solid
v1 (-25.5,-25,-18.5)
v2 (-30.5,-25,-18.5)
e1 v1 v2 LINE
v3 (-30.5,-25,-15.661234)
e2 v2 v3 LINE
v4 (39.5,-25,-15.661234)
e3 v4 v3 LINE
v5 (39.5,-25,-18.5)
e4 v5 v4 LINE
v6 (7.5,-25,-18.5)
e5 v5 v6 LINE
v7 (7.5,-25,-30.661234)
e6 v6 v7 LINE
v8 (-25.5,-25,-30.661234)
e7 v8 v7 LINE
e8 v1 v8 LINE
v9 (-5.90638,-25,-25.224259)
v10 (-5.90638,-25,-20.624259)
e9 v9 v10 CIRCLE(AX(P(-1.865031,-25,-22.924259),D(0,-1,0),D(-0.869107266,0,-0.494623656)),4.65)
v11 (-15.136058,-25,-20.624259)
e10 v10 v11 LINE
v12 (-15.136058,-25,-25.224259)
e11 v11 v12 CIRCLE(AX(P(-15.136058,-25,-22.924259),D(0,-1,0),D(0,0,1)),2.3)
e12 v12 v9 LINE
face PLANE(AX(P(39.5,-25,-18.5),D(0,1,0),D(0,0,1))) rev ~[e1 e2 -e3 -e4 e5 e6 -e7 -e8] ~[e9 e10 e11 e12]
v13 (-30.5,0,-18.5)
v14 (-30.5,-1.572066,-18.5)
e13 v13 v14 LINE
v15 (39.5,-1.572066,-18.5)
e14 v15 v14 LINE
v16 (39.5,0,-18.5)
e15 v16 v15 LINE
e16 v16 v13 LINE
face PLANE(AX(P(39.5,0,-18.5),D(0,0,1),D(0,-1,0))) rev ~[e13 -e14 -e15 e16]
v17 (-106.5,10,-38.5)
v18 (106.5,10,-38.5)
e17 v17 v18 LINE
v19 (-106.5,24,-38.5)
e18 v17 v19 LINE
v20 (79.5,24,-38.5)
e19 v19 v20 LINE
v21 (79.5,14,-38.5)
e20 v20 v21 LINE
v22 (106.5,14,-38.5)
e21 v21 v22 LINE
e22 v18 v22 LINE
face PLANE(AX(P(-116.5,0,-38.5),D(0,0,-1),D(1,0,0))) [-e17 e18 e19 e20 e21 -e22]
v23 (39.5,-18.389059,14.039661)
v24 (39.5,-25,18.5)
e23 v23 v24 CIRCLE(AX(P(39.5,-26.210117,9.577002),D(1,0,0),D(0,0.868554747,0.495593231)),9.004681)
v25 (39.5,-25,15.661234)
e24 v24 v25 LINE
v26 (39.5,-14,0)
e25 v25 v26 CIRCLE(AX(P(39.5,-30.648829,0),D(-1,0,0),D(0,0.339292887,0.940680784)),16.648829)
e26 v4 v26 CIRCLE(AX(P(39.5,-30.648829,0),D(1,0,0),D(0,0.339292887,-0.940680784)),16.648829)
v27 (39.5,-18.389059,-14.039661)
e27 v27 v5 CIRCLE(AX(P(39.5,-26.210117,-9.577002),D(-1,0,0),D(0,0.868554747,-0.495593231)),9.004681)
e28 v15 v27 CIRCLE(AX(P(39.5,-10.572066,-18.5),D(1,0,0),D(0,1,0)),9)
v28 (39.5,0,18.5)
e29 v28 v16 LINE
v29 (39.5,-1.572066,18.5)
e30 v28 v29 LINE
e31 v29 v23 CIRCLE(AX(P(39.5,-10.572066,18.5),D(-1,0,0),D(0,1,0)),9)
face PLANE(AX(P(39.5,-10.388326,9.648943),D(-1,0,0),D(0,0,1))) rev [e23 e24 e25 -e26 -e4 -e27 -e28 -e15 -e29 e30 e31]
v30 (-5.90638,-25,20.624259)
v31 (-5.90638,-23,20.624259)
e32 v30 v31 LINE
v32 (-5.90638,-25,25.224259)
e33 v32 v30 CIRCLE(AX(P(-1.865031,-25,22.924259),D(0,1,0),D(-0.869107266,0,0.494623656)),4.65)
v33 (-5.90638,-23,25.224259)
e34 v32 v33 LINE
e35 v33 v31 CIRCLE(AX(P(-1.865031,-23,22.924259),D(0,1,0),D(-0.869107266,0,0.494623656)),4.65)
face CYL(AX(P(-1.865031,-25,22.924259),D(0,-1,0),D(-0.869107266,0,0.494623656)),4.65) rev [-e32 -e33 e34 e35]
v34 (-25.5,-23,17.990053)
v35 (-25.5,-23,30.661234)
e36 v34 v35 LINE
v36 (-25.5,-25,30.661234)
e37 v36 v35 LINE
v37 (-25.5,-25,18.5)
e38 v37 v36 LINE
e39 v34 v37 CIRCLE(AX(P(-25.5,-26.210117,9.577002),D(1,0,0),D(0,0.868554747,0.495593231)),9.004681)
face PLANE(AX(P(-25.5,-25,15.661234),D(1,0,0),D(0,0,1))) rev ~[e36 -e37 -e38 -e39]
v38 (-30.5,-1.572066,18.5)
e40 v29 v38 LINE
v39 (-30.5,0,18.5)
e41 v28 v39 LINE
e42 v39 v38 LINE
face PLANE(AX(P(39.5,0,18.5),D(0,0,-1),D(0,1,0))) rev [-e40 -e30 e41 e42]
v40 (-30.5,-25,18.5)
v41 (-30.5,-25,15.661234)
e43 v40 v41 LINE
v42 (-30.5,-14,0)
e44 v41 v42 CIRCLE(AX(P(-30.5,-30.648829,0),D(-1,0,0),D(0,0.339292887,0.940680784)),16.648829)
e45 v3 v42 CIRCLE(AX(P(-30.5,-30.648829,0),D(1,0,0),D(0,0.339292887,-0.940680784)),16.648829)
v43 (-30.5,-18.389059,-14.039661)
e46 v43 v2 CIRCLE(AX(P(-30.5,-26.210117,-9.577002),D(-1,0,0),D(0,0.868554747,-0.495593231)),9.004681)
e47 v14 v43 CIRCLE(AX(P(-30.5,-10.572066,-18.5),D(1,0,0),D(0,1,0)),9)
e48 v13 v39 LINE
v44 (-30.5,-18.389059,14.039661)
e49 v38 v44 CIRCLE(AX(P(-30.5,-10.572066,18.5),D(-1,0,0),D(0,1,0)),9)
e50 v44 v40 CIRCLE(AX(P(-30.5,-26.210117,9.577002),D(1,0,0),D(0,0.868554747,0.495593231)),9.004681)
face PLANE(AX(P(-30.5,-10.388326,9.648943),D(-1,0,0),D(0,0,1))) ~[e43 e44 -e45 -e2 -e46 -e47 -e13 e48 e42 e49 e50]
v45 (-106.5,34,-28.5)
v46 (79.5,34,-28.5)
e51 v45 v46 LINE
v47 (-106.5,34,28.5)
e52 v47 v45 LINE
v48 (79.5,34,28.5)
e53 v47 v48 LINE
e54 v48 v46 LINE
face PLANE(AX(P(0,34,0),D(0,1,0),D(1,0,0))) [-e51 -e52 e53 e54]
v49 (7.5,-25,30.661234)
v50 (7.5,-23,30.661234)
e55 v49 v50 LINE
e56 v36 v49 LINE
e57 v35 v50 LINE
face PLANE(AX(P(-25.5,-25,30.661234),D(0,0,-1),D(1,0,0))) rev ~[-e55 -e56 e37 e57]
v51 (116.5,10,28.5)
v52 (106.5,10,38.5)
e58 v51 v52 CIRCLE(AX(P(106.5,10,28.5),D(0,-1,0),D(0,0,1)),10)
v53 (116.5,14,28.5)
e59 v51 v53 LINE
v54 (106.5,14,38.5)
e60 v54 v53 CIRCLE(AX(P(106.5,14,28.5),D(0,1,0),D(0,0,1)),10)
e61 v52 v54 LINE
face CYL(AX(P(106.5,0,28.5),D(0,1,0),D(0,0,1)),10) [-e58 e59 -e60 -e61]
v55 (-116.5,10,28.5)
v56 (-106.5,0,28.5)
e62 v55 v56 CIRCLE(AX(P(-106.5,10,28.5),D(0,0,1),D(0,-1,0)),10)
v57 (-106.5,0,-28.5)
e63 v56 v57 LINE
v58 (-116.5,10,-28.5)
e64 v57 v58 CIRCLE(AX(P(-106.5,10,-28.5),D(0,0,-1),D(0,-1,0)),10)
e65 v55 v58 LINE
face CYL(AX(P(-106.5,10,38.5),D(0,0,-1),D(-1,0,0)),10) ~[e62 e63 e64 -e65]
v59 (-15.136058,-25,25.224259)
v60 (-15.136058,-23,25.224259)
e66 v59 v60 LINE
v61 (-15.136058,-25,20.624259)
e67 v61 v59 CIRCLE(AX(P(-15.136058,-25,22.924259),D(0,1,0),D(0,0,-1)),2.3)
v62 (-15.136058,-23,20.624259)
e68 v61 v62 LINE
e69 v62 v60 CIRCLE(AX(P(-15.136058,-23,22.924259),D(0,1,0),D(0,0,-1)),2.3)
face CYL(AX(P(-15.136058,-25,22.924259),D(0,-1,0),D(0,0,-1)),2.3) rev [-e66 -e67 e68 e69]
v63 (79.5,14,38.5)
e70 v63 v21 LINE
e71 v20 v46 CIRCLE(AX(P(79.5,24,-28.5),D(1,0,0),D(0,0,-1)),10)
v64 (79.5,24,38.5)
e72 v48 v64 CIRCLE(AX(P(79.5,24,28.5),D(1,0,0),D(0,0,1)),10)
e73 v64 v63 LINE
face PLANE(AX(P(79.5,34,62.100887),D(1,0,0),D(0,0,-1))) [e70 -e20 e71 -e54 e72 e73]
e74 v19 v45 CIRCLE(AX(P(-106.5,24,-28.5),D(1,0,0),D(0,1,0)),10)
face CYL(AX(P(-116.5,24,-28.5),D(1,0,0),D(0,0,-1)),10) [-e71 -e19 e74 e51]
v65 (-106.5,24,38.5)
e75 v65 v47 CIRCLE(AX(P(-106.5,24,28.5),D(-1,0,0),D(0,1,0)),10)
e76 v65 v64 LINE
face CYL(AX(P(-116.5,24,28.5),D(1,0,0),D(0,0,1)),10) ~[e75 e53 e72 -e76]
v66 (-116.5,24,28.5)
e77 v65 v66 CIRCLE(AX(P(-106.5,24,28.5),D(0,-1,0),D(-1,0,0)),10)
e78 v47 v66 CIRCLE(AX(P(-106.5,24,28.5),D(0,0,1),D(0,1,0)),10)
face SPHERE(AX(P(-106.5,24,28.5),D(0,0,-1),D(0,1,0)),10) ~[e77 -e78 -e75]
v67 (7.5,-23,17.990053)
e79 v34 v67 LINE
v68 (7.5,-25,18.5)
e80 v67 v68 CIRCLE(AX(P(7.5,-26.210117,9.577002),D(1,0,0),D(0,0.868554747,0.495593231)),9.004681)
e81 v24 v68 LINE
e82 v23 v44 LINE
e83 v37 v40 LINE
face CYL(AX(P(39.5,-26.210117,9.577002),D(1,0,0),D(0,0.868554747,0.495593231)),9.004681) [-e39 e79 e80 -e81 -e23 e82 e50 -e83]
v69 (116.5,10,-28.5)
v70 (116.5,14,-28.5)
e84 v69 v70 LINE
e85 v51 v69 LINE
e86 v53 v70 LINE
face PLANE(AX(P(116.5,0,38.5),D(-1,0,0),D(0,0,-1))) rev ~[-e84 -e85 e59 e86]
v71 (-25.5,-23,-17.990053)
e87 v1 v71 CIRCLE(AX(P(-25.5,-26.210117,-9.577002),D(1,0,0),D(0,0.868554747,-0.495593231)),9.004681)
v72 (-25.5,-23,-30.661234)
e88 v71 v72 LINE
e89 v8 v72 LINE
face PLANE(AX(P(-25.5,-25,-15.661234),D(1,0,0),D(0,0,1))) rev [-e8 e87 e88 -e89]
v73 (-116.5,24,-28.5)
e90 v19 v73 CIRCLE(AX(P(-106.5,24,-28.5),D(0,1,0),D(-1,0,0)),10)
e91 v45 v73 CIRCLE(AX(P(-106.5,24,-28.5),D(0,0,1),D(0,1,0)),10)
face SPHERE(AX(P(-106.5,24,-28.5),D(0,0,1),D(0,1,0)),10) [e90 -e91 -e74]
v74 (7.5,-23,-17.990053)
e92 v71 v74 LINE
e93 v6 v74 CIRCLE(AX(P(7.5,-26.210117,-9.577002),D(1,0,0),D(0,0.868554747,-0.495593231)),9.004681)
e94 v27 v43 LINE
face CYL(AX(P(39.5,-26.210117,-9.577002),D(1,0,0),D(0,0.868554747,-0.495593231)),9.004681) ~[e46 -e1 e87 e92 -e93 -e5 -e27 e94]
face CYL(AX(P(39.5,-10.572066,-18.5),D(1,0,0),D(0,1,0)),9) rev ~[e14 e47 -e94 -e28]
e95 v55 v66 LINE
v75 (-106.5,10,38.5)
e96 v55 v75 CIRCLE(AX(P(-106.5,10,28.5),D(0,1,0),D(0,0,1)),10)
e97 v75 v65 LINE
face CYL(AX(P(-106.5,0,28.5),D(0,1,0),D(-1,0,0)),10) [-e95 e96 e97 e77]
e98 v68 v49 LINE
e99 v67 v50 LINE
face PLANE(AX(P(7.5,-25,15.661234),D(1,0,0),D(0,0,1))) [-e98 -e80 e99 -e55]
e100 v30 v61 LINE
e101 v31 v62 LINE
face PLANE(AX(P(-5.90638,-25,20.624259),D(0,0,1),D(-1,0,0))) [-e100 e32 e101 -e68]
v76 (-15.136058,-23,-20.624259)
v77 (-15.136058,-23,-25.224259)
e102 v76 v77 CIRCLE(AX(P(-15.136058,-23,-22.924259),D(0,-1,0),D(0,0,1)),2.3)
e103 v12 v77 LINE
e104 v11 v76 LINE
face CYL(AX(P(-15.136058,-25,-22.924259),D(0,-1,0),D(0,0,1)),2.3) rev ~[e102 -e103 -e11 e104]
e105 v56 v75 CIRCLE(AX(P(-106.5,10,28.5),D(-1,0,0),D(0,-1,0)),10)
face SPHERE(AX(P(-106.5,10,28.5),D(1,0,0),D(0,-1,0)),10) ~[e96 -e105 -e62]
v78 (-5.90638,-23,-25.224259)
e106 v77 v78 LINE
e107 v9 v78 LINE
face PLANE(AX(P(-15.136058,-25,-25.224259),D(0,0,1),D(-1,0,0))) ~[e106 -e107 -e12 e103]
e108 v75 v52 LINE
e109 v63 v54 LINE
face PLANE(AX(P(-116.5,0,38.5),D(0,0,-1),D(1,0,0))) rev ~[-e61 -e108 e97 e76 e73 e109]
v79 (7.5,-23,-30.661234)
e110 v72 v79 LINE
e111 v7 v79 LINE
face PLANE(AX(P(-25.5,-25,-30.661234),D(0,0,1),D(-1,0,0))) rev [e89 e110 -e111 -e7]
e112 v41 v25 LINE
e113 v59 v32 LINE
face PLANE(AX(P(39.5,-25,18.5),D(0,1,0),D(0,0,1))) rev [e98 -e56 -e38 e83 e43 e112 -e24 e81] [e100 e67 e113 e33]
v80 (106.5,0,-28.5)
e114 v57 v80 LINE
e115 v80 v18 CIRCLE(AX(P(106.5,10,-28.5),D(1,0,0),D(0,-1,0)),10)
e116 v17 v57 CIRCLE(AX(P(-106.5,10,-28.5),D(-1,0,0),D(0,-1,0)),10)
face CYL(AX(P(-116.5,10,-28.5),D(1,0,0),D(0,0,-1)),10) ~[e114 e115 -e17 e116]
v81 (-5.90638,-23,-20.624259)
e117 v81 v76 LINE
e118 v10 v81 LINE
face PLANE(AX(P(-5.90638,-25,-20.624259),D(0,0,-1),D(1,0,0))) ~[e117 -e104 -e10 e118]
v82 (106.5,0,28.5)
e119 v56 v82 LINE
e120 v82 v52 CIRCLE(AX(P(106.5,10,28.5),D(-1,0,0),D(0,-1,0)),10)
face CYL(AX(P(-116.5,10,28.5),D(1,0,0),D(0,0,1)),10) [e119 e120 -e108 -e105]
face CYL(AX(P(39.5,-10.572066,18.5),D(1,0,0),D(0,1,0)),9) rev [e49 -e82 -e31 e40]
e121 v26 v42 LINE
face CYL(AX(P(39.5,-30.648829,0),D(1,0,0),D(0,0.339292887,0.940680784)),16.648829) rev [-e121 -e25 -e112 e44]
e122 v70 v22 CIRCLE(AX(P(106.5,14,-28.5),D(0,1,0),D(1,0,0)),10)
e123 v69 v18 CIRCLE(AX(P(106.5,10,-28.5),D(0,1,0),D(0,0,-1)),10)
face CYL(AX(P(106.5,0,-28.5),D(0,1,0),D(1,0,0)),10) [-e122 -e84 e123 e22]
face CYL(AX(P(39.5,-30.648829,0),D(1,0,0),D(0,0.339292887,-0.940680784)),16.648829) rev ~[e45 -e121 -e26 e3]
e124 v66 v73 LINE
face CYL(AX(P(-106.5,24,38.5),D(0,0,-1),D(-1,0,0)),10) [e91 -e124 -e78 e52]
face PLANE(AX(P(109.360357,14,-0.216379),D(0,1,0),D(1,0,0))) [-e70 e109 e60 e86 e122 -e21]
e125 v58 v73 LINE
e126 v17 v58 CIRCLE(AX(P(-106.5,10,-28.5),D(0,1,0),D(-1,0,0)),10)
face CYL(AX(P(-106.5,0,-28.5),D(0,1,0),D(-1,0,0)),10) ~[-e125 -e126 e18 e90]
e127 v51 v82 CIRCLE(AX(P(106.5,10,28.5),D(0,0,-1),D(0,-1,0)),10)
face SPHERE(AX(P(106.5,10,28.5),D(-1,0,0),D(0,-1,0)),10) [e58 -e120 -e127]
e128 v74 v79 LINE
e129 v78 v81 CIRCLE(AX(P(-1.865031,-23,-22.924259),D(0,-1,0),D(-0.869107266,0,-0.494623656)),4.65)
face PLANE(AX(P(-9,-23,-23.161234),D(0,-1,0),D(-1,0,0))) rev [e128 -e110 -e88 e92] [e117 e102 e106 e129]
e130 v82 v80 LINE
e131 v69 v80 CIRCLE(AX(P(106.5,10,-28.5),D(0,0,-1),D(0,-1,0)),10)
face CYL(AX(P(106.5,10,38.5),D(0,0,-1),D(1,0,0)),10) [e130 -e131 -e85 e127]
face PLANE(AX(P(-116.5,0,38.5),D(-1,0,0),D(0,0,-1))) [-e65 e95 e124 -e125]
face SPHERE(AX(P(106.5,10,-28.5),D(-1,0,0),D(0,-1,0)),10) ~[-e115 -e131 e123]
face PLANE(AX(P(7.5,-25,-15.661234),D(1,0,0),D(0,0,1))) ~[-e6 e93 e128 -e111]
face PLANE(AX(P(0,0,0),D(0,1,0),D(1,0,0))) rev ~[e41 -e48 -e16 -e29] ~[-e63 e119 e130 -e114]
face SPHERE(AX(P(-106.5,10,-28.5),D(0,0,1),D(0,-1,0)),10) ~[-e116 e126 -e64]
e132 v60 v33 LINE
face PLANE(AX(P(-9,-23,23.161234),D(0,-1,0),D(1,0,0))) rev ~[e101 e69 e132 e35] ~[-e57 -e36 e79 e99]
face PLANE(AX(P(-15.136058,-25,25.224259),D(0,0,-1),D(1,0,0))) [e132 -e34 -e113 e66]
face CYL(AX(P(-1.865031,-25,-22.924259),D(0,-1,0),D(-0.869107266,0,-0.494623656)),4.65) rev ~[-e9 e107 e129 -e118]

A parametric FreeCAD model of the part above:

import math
import FreeCAD as App
import Part
import Sketcher


def add_polygon(sketch, points):
    """Adds a closed chain of lines whose ends are joined by coincident constraints."""
    first, n = sketch.GeometryCount, len(points)
    for a, b in zip(points, points[1:] + points[:1]):
        sketch.addGeometry(Part.LineSegment(App.Vector(*a, 0), App.Vector(*b, 0)), False)
    for i in range(n):
        sketch.addConstraint(Sketcher.Constraint("Coincident", first + i, 2, first + (i + 1) % n, 1))

doc = App.newDocument("Part")
params = doc.addObject("Spreadsheet::Sheet", "Params")
for row, (alias, value) in enumerate([
    ("sketch1_width", "233 mm"),
    ("sketch1_height", "77 mm"),
    ("pad1_length", "34 mm"),
    ("fillet_radius", "10 mm"),
    ("sketch2_radius", "9 mm"),
    ("sketch2_width", "14 mm"),
    ("sketch2_height", "18.5 mm"),
    ("pad2_length", "70 mm"),
    ("pocket1_length", "20 mm"),
    ("sketch4_width", "33 mm"),
    ("sketch4_height", "15 mm"),
    ("pad3_length", "2 mm"),
    ("sketch5_radius", "2.3 mm"),
    ("sketch5_radius2", "4.65 mm"),
    ("pocket2_length", "2 mm"),
], start=1):
    params.set(f"A{row}", alias)
    params.set(f"B{row}", "=" + value)
    params.setAlias(f"B{row}", alias)

body = doc.addObject("PartDesign::Body", "Body")

sketch1 = body.newObject("Sketcher::SketchObject", "Sketch")
sketch1.AttachmentSupport = (doc.getObject("XZ_Plane"), [""])
sketch1.MapMode = "FlatFace"
add_polygon(sketch1, [(-116.5, -38.5), (-116.5, 38.5), (116.5, 38.5), (116.5, -38.5)])
sketch1.addConstraint(Sketcher.Constraint("Vertical", 0))
sketch1.addConstraint(Sketcher.Constraint("Horizontal", 1))
sketch1.addConstraint(Sketcher.Constraint("Vertical", 2))
sketch1.addConstraint(Sketcher.Constraint("Horizontal", 3))
sketch1.addConstraint(Sketcher.Constraint("Symmetric", 0, 2, 2, 2, -1, 1))
sketch1.addConstraint(Sketcher.Constraint("DistanceX", 1, 1, 1, 2, 233.0))
sketch1.addConstraint(Sketcher.Constraint("DistanceY", 0, 1, 0, 2, 77.0))
sketch1.setExpression("Constraints[9]", "Params.sketch1_width")
sketch1.setExpression("Constraints[10]", "Params.sketch1_height")
pad1 = body.newObject("PartDesign::Pad", "Pad")
pad1.Profile = sketch1
pad1.setExpression("Length", "Params.pad1_length")
pad1.Reversed = True
doc.recompute()

fillet = body.newObject("PartDesign::Fillet", "Fillet")
fillet.Base = (pad1, ["Edge1"])
fillet.UseAllEdges = True
fillet.setExpression("Radius", "Params.fillet_radius")

sketch2 = body.newObject("Sketcher::SketchObject", "Sketch001")
sketch2.AttachmentSupport = (doc.getObject("YZ_Plane"), [""])
sketch2.MapMode = "FlatFace"
sketch2.AttachmentOffset = App.Placement(App.Vector(0, 0, 39.5), App.Rotation())
sketch2.addGeometry(Part.LineSegment(App.Vector(0, -18.5, 0), App.Vector(0, 0, 0)), False)
sketch2.addGeometry(Part.LineSegment(App.Vector(0, 0, 0), App.Vector(-14, 0, 0)), False)
sketch2.addGeometry(Part.ArcOfCircle(Part.Circle(App.Vector(-30.648829, 0, 0), App.Vector(0, 0, 1), 16.648829), math.radians(-70.166201), math.radians(0)), False)
sketch2.addGeometry(Part.LineSegment(App.Vector(-25, -15.661234, 0), App.Vector(-25, -18.5, 0)), False)
sketch2.addGeometry(Part.ArcOfCircle(Part.Circle(App.Vector(-26.210117, -9.577002, 0), App.Vector(0, 0, 1), 9.004681), math.radians(-82.276791), math.radians(-29.708876)), False)
sketch2.addGeometry(Part.ArcOfCircle(Part.Circle(App.Vector(-10.572066, -18.5, 0), App.Vector(0, 0, 1), 9), math.radians(0), math.radians(150.291124)), False)
sketch2.addGeometry(Part.LineSegment(App.Vector(-1.572066, -18.5, 0), App.Vector(0, -18.5, 0)), False)
sketch2.addConstraint(Sketcher.Constraint("Coincident", 0, 2, 1, 1))
sketch2.addConstraint(Sketcher.Constraint("Coincident", 1, 2, 2, 2))
sketch2.addConstraint(Sketcher.Constraint("Coincident", 2, 1, 3, 1))
sketch2.addConstraint(Sketcher.Constraint("Coincident", 3, 2, 4, 1))
sketch2.addConstraint(Sketcher.Constraint("Tangent", 4, 2, 5, 2))
sketch2.addConstraint(Sketcher.Constraint("Coincident", 5, 1, 6, 1))
sketch2.addConstraint(Sketcher.Constraint("Coincident", 6, 2, 0, 1))
sketch2.addConstraint(Sketcher.Constraint("Vertical", 0))
sketch2.addConstraint(Sketcher.Constraint("Horizontal", 1))
sketch2.addConstraint(Sketcher.Constraint("Vertical", 3))
sketch2.addConstraint(Sketcher.Constraint("Horizontal", 6))
sketch2.addConstraint(Sketcher.Constraint("Coincident", 0, 2, -1, 1))
sketch2.addConstraint(Sketcher.Constraint("PointOnObject", 2, 3, -1))
sketch2.addConstraint(Sketcher.Constraint("Horizontal", 5, 3, 3, 2))
sketch2.addConstraint(Sketcher.Constraint("Horizontal", 3, 2, 5, 1))
sketch2.addConstraint(Sketcher.Constraint("Radius", 5, 9.0))
sketch2.addConstraint(Sketcher.Constraint("DistanceX", 1, 2, 1, 1, 14.0))
sketch2.addConstraint(Sketcher.Constraint("DistanceY", 0, 1, 0, 2, 18.5))
sketch2.addConstraint(Sketcher.Constraint("DistanceX", 2, 1, -1, 1, 25.0))
sketch2.addConstraint(Sketcher.Constraint("Radius", 2, 16.648829))
sketch2.addConstraint(Sketcher.Constraint("Radius", 4, 9.004681))
sketch2.addConstraint(Sketcher.Constraint("DistanceX", 6, 1, 6, 2, 1.572066))
sketch2.setExpression("Constraints[15]", "Params.sketch2_radius")
sketch2.setExpression("Constraints[16]", "Params.sketch2_width")
sketch2.setExpression("Constraints[17]", "Params.sketch2_height")
pad2 = body.newObject("PartDesign::Pad", "Pad001")
pad2.Profile = sketch2
pad2.setExpression("Length", "Params.pad2_length")
pad2.Reversed = True

sketch3 = body.newObject("Sketcher::SketchObject", "Sketch002")
sketch3.AttachmentSupport = (doc.getObject("XZ_Plane"), [""])
sketch3.MapMode = "FlatFace"
sketch3.AttachmentOffset = App.Placement(App.Vector(0, 0, -34), App.Rotation())
add_polygon(sketch3, [(79.5, -62.533646), (79.5, 62.100887), (139.220713, 62.100887), (139.220713, -62.533646)])
sketch3.addConstraint(Sketcher.Constraint("Vertical", 0))
sketch3.addConstraint(Sketcher.Constraint("Horizontal", 1))
sketch3.addConstraint(Sketcher.Constraint("Vertical", 2))
sketch3.addConstraint(Sketcher.Constraint("Horizontal", 3))
sketch3.addConstraint(Sketcher.Constraint("DistanceX", -1, 1, 0, 2, 79.5))
sketch3.addConstraint(Sketcher.Constraint("DistanceX", 1, 1, 1, 2, 59.720713))
sketch3.addConstraint(Sketcher.Constraint("DistanceY", 0, 1, 0, 2, 124.634532))
sketch3.addConstraint(Sketcher.Constraint("DistanceY", -1, 1, 0, 2, 62.100887))
pocket1 = body.newObject("PartDesign::Pocket", "Pocket")
pocket1.Profile = sketch3
pocket1.setExpression("Length", "Params.pocket1_length")
pocket1.Reversed = True
doc.recompute()

mirrored = body.newObject("PartDesign::Mirrored", "Mirrored")
mirrored.Originals = [pad2]
mirrored.MirrorPlane = (doc.getObject("XY_Plane"), [""])
body.Tip = mirrored

sketch4 = body.newObject("Sketcher::SketchObject", "Sketch003")
sketch4.AttachmentSupport = (doc.getObject("XZ_Plane"), [""])
sketch4.MapMode = "FlatFace"
sketch4.AttachmentOffset = App.Placement(App.Vector(0, 0, 25), App.Rotation())
add_polygon(sketch4, [(-25.5, 30.661234), (-25.5, 15.661234), (7.5, 15.661234), (7.5, 30.661234)])
sketch4.addConstraint(Sketcher.Constraint("Vertical", 0))
sketch4.addConstraint(Sketcher.Constraint("Horizontal", 1))
sketch4.addConstraint(Sketcher.Constraint("Vertical", 2))
sketch4.addConstraint(Sketcher.Constraint("Horizontal", 3))
sketch4.addConstraint(Sketcher.Constraint("DistanceX", 1, 1, 1, 2, 33.0))
sketch4.addConstraint(Sketcher.Constraint("DistanceY", 0, 2, 0, 1, 15.0))
sketch4.addConstraint(Sketcher.Constraint("DistanceX", 0, 2, -1, 1, 25.5))
sketch4.addConstraint(Sketcher.Constraint("DistanceY", -1, 1, 0, 2, 15.661234))
sketch4.setExpression("Constraints[8]", "Params.sketch4_width")
sketch4.setExpression("Constraints[9]", "Params.sketch4_height")
pad3 = body.newObject("PartDesign::Pad", "Pad002")
pad3.Profile = sketch4
pad3.setExpression("Length", "Params.pad3_length")
pad3.Reversed = True

sketch5 = body.newObject("Sketcher::SketchObject", "Sketch004")
sketch5.AttachmentSupport = (doc.getObject("XZ_Plane"), [""])
sketch5.MapMode = "FlatFace"
sketch5.AttachmentOffset = App.Placement(App.Vector(0, 0, 25), App.Rotation())
sketch5.addGeometry(Part.LineSegment(App.Vector(-15.136058, 20.624259, 0), App.Vector(-5.90638, 20.624259, 0)), False)
sketch5.addGeometry(Part.ArcOfCircle(Part.Circle(App.Vector(-1.865031, 22.924259, 0), App.Vector(0, 0, 1), 4.65), math.radians(-150.355063), math.radians(150.355063)), False)
sketch5.addGeometry(Part.LineSegment(App.Vector(-5.90638, 25.224259, 0), App.Vector(-15.136058, 25.224259, 0)), False)
sketch5.addGeometry(Part.ArcOfCircle(Part.Circle(App.Vector(-15.136058, 22.924259, 0), App.Vector(0, 0, 1), 2.3), math.radians(90), math.radians(270)), False)
sketch5.addConstraint(Sketcher.Constraint("Coincident", 0, 2, 1, 1))
sketch5.addConstraint(Sketcher.Constraint("Coincident", 1, 2, 2, 1))
sketch5.addConstraint(Sketcher.Constraint("Tangent", 2, 2, 3, 1))
sketch5.addConstraint(Sketcher.Constraint("Tangent", 3, 2, 0, 1))
sketch5.addConstraint(Sketcher.Constraint("Horizontal", 0))
sketch5.addConstraint(Sketcher.Constraint("Horizontal", 2))
sketch5.addConstraint(Sketcher.Constraint("Horizontal", 1, 3, 3, 3))
sketch5.addConstraint(Sketcher.Constraint("Radius", 3, 2.3))
sketch5.addConstraint(Sketcher.Constraint("Radius", 1, 4.65))
sketch5.addConstraint(Sketcher.Constraint("DistanceX", 0, 1, 0, 2, 9.229678))
sketch5.addConstraint(Sketcher.Constraint("DistanceX", 1, 3, -1, 1, 1.865031))
sketch5.addConstraint(Sketcher.Constraint("DistanceY", -1, 1, 1, 3, 22.924259))
sketch5.setExpression("Constraints[7]", "Params.sketch5_radius")
sketch5.setExpression("Constraints[8]", "Params.sketch5_radius2")
pocket2 = body.newObject("PartDesign::Pocket", "Pocket001")
pocket2.Profile = sketch5
pocket2.setExpression("Length", "Params.pocket2_length")
doc.recompute()

mirrored2 = body.newObject("PartDesign::Mirrored", "Mirrored001")
mirrored2.Originals = [pad3, pocket2]
mirrored2.MirrorPlane = (doc.getObject("XY_Plane"), [""])
body.Tip = mirrored2

doc.recompute()
